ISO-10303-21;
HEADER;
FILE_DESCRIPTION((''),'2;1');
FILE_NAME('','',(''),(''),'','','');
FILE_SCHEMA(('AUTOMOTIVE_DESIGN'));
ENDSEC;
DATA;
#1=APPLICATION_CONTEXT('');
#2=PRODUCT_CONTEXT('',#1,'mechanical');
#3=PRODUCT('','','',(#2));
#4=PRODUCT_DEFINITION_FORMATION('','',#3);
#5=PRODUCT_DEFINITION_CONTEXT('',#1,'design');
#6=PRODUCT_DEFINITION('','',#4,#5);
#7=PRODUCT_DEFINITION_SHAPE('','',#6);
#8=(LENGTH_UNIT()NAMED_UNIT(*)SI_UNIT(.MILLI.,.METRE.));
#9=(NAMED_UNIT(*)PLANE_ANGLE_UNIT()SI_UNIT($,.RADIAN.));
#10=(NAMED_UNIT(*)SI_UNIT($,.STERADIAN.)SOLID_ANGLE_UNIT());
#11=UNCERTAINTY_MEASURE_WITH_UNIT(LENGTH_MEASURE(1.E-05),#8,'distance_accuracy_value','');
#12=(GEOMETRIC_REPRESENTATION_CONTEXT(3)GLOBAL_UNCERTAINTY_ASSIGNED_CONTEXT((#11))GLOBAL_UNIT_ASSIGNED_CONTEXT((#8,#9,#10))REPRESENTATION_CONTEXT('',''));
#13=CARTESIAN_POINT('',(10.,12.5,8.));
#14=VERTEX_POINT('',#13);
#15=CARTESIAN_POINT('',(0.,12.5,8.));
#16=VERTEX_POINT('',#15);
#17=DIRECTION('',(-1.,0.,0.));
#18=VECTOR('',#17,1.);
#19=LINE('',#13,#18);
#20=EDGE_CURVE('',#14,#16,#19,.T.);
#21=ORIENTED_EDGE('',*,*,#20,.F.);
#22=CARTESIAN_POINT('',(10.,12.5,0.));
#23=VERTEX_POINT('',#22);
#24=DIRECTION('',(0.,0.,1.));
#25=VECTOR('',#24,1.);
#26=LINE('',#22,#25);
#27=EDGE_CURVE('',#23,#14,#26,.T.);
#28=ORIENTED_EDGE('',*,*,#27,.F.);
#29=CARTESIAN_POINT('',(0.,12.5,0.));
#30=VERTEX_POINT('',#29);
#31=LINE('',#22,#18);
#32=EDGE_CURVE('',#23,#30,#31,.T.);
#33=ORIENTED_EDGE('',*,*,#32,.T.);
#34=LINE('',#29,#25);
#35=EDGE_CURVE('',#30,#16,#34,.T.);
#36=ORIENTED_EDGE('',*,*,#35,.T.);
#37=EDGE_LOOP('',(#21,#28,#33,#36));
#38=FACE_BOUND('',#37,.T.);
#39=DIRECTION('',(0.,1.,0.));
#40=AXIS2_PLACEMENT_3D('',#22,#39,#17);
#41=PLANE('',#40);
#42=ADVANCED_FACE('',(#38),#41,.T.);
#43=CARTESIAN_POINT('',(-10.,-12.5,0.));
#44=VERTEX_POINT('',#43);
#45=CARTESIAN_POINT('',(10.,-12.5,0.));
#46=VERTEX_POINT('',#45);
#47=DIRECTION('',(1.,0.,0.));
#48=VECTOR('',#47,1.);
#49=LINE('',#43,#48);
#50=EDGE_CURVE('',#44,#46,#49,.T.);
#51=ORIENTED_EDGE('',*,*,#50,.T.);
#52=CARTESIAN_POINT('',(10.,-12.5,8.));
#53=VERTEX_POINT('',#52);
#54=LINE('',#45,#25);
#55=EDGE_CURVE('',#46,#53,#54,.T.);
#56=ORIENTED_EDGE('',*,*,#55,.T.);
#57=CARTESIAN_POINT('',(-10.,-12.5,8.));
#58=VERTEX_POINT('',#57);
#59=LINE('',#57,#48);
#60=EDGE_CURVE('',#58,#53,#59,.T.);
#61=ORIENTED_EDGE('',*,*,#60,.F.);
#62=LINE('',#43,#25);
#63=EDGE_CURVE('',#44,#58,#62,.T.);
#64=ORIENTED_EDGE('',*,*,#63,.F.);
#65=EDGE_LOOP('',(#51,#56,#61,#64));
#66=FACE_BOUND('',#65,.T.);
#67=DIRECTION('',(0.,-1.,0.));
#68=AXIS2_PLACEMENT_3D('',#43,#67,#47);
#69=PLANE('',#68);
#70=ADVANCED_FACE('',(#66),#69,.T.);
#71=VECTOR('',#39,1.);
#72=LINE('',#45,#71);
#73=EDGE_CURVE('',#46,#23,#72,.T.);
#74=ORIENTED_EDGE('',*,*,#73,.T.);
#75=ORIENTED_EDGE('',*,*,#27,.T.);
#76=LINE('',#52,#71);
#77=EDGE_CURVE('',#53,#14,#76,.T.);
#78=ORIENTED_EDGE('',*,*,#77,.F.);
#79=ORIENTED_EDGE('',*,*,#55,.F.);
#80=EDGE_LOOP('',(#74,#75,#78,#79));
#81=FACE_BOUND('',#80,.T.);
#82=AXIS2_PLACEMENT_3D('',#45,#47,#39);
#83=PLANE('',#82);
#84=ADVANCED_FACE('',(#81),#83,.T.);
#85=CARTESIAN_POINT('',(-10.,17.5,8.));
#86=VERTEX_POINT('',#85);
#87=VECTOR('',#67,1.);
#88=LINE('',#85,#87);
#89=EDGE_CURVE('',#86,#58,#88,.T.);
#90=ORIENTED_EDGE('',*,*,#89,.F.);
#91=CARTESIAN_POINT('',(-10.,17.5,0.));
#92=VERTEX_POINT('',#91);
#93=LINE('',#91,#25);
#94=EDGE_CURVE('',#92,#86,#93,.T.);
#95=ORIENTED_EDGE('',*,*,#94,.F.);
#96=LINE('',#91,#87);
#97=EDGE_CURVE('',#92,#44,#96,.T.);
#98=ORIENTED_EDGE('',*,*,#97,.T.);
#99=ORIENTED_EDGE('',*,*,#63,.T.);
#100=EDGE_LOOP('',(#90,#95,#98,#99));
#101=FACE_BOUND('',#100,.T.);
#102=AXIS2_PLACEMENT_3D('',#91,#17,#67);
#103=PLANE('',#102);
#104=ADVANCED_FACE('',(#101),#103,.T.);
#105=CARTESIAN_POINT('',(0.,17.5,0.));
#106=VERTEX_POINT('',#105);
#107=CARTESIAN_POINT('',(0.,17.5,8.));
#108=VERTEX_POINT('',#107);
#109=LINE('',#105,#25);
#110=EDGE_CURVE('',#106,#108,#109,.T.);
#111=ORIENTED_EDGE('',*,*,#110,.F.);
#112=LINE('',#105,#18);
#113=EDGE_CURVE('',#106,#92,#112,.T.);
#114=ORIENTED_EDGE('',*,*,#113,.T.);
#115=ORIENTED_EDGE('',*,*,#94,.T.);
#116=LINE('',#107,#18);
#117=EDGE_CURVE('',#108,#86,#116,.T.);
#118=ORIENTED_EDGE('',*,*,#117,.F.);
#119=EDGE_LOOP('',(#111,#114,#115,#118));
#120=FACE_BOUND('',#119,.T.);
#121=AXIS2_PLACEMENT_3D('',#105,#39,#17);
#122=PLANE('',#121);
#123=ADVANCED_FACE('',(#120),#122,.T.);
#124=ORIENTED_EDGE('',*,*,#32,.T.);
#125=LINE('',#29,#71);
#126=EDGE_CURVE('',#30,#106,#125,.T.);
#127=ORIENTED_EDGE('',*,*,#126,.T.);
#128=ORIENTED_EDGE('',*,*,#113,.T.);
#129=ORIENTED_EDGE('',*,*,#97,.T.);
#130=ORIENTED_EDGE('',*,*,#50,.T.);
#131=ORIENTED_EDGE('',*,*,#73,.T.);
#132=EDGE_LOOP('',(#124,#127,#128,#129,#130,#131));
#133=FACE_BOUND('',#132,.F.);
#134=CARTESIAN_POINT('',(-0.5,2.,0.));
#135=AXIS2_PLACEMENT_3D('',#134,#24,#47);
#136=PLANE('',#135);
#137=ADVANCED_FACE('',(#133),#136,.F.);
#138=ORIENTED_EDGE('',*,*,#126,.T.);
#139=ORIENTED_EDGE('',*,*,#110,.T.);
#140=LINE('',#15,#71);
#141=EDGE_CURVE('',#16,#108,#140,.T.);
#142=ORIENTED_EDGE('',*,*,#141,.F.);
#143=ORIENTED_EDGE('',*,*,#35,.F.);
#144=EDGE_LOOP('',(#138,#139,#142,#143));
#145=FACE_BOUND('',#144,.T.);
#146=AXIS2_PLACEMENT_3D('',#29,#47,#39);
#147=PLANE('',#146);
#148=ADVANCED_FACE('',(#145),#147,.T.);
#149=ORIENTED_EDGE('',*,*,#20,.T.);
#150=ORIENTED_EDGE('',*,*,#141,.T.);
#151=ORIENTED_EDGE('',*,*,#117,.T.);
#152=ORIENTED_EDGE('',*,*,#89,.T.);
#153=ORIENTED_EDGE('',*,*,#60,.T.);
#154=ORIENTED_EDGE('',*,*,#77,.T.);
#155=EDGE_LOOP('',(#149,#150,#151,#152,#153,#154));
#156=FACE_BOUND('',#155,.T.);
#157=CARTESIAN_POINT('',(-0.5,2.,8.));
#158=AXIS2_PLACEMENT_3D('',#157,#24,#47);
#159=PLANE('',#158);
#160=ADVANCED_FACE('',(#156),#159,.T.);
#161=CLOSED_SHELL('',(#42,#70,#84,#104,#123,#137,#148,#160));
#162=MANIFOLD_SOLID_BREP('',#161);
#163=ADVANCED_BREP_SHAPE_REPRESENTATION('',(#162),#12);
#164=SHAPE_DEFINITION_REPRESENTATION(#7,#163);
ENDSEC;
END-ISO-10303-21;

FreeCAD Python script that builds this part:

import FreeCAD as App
import Part
import Sketcher

V = App.Vector
Q = App.Units.Quantity


def add_polygon(sketch, points):
    """Adds a closed chain of lines whose ends are joined by coincident constraints."""
    first, n = sketch.GeometryCount, len(points)
    for a, b in zip(points, points[1:] + points[:1]):
        sketch.addGeometry(Part.LineSegment(App.Vector(*a, 0), App.Vector(*b, 0)), False)
    for i in range(n):
        sketch.addConstraint(Sketcher.Constraint("Coincident", first + i, 2, first + (i + 1) % n, 1))

doc = App.newDocument("Part")
params = doc.addObject("Spreadsheet::Sheet", "Params")
for row, (alias, value) in enumerate([
    ("sketch1_width", "10 mm"),
    ("sketch1_height", "25 mm"),
    ("sketch1_height2", "5 mm"),
    ("sketch2_height", "8 mm"),
], start=1):
    params.set(f"A{row}", alias)
    params.set(f"B{row}", "=" + value)
    params.setAlias(f"B{row}", alias)

body = doc.addObject("PartDesign::Body", "Body")

# Sketch on XY plane
sketch1 = body.newObject("Sketcher::SketchObject", "Sketch")
sketch1.AttachmentSupport = (doc.getObject("XY_Plane"), [""])
sketch1.MapMode = "FlatFace"
add_polygon(sketch1, [(10, -12), (10, 12), (0, 12), (0, 18), (-10, 18), (-10, -12)])  # lines 0-5
sketch1.addConstraint([
    Sketcher.Constraint("Vertical", 0),
    Sketcher.Constraint("Horizontal", 1),
    Sketcher.Constraint("Vertical", 2),
    Sketcher.Constraint("Horizontal", 3),
    Sketcher.Constraint("Vertical", 4),
    Sketcher.Constraint("Horizontal", 5),
    Sketcher.Constraint("Symmetric", 0, 2, 4, 2, -1, 1),
    Sketcher.Constraint("PointOnObject", 1, 2, -2),
    Sketcher.Constraint("DistanceX", 1, 2, 1, 1, Q("10 mm")),
    Sketcher.Constraint("DistanceY", 0, 1, 0, 2, Q("25 mm")),
    Sketcher.Constraint("DistanceY", 2, 1, 2, 2, Q("5 mm")),
])
sketch1.setExpression("Constraints[14]", "Params.sketch1_width")
sketch1.setExpression("Constraints[15]", "Params.sketch1_height")
sketch1.setExpression("Constraints[16]", "Params.sketch1_height2")

# Sketch on XZ plane
sketch2 = body.newObject("Sketcher::SketchObject", "Sketch001")
sketch2.AttachmentSupport = (doc.getObject("XZ_Plane"), [""])
sketch2.MapMode = "FlatFace"
sketch2.addGeometry(Part.LineSegment(V(0, 0, 0), V(0, 8, 0)), False)
sketch2.addConstraint([
    Sketcher.Constraint("Vertical", 0),
    Sketcher.Constraint("Coincident", 0, 1, -1, 1),
    Sketcher.Constraint("DistanceY", 0, 1, 0, 2, Q("8 mm")),
])
sketch2.setExpression("Constraints[2]", "Params.sketch2_height")
doc.recompute()

additivepipe = body.newObject("PartDesign::AdditivePipe", "AdditivePipe")
additivepipe.Profile = sketch1
additivepipe.Spine = (sketch2, ["Edge1"])

doc.recompute()
